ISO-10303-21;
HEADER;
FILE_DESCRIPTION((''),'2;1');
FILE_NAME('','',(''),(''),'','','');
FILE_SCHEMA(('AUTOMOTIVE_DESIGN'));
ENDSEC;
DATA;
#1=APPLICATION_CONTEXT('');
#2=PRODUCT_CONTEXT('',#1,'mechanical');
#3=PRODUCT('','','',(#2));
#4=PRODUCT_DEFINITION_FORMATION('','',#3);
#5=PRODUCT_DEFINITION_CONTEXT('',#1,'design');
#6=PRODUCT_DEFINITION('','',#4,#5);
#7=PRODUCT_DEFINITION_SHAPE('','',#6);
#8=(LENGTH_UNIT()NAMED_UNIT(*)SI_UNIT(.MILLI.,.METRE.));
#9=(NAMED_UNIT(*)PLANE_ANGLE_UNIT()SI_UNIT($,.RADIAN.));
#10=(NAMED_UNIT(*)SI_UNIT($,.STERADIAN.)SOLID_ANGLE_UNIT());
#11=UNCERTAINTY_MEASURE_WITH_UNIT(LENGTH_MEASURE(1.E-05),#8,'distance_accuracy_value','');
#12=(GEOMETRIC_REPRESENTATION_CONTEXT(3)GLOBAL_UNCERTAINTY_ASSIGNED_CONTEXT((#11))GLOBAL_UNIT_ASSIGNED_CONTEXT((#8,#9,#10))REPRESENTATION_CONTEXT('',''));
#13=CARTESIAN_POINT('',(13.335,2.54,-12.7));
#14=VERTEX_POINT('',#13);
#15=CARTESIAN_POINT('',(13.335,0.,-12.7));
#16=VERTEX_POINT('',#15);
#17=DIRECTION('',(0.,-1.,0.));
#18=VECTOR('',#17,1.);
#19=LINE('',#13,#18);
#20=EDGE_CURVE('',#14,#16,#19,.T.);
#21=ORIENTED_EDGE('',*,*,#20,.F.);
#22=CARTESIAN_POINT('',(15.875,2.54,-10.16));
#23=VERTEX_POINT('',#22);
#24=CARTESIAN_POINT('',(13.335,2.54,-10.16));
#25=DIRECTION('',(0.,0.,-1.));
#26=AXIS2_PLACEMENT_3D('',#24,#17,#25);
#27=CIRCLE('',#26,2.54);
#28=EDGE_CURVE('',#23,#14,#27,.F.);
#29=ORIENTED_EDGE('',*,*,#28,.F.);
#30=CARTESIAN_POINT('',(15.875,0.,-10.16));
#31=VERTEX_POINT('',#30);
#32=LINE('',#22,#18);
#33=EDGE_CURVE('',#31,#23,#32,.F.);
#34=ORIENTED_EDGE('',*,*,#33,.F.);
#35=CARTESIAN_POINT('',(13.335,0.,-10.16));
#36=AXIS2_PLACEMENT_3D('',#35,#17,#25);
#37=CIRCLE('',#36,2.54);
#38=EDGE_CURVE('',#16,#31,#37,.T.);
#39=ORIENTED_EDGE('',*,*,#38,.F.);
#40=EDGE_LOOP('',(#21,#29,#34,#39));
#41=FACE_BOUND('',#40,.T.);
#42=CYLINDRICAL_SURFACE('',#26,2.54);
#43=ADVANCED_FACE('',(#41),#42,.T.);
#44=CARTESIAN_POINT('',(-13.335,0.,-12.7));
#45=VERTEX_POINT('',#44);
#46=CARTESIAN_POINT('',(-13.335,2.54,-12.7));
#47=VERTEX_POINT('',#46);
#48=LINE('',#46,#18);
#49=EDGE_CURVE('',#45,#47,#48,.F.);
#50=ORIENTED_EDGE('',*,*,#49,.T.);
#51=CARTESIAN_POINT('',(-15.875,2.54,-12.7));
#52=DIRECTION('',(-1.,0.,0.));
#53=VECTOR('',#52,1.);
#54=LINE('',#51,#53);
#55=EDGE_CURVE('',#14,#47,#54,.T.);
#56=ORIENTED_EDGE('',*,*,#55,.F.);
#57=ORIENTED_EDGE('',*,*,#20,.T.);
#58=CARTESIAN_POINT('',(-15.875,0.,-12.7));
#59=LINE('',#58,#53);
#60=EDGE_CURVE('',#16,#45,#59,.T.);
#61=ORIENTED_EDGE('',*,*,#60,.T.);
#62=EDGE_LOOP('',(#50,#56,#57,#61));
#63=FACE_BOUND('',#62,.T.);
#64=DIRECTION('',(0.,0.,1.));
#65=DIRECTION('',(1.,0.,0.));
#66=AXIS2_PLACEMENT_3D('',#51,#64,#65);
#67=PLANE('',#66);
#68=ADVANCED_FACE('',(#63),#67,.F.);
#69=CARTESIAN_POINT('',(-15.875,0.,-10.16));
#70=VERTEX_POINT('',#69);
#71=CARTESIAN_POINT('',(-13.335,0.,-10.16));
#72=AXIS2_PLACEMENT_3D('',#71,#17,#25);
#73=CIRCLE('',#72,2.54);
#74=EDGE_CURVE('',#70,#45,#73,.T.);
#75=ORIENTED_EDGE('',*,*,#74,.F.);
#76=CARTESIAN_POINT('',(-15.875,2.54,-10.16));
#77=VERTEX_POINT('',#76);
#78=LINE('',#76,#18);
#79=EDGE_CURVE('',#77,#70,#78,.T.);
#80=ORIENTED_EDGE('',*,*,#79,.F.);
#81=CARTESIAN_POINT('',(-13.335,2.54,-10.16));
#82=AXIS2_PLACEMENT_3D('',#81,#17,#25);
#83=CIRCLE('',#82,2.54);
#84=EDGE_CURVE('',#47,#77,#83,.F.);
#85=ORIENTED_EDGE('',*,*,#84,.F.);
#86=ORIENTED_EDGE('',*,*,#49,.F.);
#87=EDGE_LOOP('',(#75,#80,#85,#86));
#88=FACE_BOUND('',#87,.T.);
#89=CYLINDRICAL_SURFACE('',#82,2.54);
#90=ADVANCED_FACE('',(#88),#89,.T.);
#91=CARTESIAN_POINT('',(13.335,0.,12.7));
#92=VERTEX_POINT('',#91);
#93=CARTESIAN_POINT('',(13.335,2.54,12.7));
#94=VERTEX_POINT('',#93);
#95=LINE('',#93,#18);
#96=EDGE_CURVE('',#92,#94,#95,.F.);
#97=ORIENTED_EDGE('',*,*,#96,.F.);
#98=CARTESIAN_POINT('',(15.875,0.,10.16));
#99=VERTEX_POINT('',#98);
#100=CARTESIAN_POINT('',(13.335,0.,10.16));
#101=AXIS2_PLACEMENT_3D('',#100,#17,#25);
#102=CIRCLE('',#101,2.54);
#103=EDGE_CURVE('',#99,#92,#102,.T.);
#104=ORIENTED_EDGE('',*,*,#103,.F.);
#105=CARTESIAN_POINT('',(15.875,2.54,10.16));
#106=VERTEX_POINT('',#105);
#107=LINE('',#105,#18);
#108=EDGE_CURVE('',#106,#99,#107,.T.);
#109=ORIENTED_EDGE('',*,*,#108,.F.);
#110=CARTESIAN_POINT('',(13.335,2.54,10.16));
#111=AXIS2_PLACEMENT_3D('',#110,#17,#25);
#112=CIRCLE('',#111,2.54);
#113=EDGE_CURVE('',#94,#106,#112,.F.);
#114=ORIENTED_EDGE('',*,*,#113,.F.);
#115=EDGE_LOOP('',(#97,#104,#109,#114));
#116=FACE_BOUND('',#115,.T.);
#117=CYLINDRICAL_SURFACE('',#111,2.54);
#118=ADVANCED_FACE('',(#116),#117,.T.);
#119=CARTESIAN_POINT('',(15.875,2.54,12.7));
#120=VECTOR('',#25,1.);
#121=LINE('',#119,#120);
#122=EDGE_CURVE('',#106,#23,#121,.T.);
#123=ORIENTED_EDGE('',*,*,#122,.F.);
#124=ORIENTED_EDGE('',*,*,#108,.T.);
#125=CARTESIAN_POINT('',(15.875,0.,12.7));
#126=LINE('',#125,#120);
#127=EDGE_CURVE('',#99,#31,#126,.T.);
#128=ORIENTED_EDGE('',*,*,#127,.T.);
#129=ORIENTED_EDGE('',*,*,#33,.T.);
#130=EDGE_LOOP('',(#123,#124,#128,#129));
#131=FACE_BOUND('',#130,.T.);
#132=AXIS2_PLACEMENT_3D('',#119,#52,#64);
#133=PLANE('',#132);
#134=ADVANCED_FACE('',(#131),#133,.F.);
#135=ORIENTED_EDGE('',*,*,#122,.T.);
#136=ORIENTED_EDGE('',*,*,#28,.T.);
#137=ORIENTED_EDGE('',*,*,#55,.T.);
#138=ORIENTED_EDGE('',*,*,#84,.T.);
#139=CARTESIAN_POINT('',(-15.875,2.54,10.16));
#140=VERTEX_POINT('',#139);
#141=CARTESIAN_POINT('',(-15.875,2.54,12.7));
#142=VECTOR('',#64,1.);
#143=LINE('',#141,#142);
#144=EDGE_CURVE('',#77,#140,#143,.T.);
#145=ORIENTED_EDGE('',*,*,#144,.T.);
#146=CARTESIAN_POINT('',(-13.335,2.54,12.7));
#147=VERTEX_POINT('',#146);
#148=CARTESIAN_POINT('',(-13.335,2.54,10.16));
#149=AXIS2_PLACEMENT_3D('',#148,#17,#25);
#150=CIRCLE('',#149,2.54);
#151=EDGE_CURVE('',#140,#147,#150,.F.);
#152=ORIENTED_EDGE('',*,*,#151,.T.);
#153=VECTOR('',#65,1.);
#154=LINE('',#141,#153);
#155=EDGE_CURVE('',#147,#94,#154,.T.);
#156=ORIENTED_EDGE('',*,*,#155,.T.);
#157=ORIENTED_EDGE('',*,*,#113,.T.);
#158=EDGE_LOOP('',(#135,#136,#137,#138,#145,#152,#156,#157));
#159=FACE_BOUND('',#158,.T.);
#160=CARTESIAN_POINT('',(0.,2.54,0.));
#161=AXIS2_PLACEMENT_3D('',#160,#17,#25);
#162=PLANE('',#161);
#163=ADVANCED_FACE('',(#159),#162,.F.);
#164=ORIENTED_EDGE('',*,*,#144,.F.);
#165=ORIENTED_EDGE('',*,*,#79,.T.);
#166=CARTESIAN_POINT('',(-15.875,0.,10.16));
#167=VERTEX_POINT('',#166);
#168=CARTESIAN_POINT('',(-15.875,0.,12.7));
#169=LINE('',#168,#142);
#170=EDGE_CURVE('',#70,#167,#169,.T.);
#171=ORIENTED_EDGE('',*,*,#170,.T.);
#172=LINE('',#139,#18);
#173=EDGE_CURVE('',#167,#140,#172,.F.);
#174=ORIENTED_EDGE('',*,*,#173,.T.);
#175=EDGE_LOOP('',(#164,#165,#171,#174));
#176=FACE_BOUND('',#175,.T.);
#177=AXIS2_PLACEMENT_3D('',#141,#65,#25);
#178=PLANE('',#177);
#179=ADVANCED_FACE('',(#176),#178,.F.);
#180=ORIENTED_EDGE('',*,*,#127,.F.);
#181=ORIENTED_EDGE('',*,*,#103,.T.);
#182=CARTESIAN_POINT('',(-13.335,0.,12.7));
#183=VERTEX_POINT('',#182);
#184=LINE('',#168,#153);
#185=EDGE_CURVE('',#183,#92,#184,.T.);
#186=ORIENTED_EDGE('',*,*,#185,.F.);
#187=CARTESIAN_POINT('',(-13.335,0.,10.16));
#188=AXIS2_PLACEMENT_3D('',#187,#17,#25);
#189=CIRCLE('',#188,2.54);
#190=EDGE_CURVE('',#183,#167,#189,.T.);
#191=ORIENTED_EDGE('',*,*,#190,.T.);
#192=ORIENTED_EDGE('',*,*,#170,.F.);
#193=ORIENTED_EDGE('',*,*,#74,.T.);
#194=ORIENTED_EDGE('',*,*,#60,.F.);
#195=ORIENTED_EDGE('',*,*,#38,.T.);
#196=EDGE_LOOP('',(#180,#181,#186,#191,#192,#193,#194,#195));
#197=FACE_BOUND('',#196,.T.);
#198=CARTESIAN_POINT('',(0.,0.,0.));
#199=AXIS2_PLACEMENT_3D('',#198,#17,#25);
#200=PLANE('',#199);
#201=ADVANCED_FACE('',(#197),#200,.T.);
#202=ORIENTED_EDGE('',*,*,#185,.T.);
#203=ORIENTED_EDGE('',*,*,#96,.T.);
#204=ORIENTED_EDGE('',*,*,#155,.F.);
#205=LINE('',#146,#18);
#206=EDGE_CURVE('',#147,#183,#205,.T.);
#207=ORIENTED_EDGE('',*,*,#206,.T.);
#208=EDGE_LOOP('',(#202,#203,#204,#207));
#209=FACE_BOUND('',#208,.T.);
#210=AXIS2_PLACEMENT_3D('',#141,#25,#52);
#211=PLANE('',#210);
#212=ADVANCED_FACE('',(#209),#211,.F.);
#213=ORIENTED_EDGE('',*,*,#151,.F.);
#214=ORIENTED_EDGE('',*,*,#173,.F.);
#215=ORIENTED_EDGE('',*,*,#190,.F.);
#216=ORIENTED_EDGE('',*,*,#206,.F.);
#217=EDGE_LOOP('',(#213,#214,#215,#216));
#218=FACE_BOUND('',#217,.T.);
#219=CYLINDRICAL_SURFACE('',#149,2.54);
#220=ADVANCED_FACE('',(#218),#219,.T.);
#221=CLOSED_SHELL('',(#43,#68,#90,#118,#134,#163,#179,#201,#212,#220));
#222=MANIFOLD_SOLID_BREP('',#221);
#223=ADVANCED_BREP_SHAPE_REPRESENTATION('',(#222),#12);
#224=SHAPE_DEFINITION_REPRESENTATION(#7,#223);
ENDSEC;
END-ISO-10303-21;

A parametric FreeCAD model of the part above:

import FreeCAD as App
import Part
import Sketcher

V = App.Vector
Q = App.Units.Quantity


def edges_at(feature, points):
    """Names of the edges that pass closest to the given points."""
    edges = feature.Shape.Edges
    near = lambda p: min(range(len(edges)), key=lambda i: edges[i].distToShape(Part.Vertex(*p))[0])
    return sorted({f"Edge{near(p) + 1}" for p in points})

doc = App.newDocument("Part")
params = doc.addObject("Spreadsheet::Sheet", "Params")
for row, (alias, value) in enumerate([
    ("sketch1_height", "1 in"),
    ("sketch1_width", "1.25 in"),
    ("pad1_length", "0.1 in"),
    ("fillet_radius", "0.1 in"),
], start=1):
    params.set(f"A{row}", alias)
    params.set(f"B{row}", "=" + value)
    params.setAlias(f"B{row}", alias)

body = doc.addObject("PartDesign::Body", "Body")

# Sketch on XZ plane
sketch1 = body.newObject("Sketcher::SketchObject", "Sketch")
sketch1.AttachmentSupport = (doc.getObject("XZ_Plane"), [""])
sketch1.MapMode = "FlatFace"
sketch1.addGeometry([
    Part.LineSegment(V(-16, -13, 0), V(-16, 13, 0)),
    Part.LineSegment(V(-16, 13, 0), V(16, 13, 0)),
    Part.LineSegment(V(16, 13, 0), V(16, -13, 0)),
    Part.LineSegment(V(16, -13, 0), V(-16, -13, 0)),
], False)
sketch1.addConstraint([
    Sketcher.Constraint("Coincident", 0, 2, 1, 1),
    Sketcher.Constraint("Coincident", 1, 2, 2, 1),
    Sketcher.Constraint("Coincident", 2, 2, 3, 1),
    Sketcher.Constraint("Coincident", 3, 2, 0, 1),
    Sketcher.Constraint("Vertical", 0),
    Sketcher.Constraint("Horizontal", 1),
    Sketcher.Constraint("Vertical", 2),
    Sketcher.Constraint("Horizontal", 3),
    Sketcher.Constraint("Symmetric", 0, 2, 2, 2, -1, 1),
    Sketcher.Constraint("DistanceY", 0, 1, 0, 2, Q("1 in")),
    Sketcher.Constraint("DistanceX", 1, 1, 1, 2, Q("1.25 in")),
])
sketch1.setExpression("Constraints[9]", "Params.sketch1_height")
sketch1.setExpression("Constraints[10]", "Params.sketch1_width")
pad1 = body.newObject("PartDesign::Pad", "Pad")
pad1.Profile = sketch1
pad1.setExpression("Length", "Params.pad1_length")
pad1.Reversed = True
doc.recompute()

fillet = body.newObject("PartDesign::Fillet", "Fillet")
fillet.Base = (pad1, edges_at(pad1, [
    (-15.875, 1.27, -12.7),
    (15.875, 1.27, -12.7),
    (15.875, 1.27, 12.7),
    (-15.875, 1.27, 12.7),
]))
fillet.setExpression("Radius", "Params.fillet_radius")

doc.recompute()
